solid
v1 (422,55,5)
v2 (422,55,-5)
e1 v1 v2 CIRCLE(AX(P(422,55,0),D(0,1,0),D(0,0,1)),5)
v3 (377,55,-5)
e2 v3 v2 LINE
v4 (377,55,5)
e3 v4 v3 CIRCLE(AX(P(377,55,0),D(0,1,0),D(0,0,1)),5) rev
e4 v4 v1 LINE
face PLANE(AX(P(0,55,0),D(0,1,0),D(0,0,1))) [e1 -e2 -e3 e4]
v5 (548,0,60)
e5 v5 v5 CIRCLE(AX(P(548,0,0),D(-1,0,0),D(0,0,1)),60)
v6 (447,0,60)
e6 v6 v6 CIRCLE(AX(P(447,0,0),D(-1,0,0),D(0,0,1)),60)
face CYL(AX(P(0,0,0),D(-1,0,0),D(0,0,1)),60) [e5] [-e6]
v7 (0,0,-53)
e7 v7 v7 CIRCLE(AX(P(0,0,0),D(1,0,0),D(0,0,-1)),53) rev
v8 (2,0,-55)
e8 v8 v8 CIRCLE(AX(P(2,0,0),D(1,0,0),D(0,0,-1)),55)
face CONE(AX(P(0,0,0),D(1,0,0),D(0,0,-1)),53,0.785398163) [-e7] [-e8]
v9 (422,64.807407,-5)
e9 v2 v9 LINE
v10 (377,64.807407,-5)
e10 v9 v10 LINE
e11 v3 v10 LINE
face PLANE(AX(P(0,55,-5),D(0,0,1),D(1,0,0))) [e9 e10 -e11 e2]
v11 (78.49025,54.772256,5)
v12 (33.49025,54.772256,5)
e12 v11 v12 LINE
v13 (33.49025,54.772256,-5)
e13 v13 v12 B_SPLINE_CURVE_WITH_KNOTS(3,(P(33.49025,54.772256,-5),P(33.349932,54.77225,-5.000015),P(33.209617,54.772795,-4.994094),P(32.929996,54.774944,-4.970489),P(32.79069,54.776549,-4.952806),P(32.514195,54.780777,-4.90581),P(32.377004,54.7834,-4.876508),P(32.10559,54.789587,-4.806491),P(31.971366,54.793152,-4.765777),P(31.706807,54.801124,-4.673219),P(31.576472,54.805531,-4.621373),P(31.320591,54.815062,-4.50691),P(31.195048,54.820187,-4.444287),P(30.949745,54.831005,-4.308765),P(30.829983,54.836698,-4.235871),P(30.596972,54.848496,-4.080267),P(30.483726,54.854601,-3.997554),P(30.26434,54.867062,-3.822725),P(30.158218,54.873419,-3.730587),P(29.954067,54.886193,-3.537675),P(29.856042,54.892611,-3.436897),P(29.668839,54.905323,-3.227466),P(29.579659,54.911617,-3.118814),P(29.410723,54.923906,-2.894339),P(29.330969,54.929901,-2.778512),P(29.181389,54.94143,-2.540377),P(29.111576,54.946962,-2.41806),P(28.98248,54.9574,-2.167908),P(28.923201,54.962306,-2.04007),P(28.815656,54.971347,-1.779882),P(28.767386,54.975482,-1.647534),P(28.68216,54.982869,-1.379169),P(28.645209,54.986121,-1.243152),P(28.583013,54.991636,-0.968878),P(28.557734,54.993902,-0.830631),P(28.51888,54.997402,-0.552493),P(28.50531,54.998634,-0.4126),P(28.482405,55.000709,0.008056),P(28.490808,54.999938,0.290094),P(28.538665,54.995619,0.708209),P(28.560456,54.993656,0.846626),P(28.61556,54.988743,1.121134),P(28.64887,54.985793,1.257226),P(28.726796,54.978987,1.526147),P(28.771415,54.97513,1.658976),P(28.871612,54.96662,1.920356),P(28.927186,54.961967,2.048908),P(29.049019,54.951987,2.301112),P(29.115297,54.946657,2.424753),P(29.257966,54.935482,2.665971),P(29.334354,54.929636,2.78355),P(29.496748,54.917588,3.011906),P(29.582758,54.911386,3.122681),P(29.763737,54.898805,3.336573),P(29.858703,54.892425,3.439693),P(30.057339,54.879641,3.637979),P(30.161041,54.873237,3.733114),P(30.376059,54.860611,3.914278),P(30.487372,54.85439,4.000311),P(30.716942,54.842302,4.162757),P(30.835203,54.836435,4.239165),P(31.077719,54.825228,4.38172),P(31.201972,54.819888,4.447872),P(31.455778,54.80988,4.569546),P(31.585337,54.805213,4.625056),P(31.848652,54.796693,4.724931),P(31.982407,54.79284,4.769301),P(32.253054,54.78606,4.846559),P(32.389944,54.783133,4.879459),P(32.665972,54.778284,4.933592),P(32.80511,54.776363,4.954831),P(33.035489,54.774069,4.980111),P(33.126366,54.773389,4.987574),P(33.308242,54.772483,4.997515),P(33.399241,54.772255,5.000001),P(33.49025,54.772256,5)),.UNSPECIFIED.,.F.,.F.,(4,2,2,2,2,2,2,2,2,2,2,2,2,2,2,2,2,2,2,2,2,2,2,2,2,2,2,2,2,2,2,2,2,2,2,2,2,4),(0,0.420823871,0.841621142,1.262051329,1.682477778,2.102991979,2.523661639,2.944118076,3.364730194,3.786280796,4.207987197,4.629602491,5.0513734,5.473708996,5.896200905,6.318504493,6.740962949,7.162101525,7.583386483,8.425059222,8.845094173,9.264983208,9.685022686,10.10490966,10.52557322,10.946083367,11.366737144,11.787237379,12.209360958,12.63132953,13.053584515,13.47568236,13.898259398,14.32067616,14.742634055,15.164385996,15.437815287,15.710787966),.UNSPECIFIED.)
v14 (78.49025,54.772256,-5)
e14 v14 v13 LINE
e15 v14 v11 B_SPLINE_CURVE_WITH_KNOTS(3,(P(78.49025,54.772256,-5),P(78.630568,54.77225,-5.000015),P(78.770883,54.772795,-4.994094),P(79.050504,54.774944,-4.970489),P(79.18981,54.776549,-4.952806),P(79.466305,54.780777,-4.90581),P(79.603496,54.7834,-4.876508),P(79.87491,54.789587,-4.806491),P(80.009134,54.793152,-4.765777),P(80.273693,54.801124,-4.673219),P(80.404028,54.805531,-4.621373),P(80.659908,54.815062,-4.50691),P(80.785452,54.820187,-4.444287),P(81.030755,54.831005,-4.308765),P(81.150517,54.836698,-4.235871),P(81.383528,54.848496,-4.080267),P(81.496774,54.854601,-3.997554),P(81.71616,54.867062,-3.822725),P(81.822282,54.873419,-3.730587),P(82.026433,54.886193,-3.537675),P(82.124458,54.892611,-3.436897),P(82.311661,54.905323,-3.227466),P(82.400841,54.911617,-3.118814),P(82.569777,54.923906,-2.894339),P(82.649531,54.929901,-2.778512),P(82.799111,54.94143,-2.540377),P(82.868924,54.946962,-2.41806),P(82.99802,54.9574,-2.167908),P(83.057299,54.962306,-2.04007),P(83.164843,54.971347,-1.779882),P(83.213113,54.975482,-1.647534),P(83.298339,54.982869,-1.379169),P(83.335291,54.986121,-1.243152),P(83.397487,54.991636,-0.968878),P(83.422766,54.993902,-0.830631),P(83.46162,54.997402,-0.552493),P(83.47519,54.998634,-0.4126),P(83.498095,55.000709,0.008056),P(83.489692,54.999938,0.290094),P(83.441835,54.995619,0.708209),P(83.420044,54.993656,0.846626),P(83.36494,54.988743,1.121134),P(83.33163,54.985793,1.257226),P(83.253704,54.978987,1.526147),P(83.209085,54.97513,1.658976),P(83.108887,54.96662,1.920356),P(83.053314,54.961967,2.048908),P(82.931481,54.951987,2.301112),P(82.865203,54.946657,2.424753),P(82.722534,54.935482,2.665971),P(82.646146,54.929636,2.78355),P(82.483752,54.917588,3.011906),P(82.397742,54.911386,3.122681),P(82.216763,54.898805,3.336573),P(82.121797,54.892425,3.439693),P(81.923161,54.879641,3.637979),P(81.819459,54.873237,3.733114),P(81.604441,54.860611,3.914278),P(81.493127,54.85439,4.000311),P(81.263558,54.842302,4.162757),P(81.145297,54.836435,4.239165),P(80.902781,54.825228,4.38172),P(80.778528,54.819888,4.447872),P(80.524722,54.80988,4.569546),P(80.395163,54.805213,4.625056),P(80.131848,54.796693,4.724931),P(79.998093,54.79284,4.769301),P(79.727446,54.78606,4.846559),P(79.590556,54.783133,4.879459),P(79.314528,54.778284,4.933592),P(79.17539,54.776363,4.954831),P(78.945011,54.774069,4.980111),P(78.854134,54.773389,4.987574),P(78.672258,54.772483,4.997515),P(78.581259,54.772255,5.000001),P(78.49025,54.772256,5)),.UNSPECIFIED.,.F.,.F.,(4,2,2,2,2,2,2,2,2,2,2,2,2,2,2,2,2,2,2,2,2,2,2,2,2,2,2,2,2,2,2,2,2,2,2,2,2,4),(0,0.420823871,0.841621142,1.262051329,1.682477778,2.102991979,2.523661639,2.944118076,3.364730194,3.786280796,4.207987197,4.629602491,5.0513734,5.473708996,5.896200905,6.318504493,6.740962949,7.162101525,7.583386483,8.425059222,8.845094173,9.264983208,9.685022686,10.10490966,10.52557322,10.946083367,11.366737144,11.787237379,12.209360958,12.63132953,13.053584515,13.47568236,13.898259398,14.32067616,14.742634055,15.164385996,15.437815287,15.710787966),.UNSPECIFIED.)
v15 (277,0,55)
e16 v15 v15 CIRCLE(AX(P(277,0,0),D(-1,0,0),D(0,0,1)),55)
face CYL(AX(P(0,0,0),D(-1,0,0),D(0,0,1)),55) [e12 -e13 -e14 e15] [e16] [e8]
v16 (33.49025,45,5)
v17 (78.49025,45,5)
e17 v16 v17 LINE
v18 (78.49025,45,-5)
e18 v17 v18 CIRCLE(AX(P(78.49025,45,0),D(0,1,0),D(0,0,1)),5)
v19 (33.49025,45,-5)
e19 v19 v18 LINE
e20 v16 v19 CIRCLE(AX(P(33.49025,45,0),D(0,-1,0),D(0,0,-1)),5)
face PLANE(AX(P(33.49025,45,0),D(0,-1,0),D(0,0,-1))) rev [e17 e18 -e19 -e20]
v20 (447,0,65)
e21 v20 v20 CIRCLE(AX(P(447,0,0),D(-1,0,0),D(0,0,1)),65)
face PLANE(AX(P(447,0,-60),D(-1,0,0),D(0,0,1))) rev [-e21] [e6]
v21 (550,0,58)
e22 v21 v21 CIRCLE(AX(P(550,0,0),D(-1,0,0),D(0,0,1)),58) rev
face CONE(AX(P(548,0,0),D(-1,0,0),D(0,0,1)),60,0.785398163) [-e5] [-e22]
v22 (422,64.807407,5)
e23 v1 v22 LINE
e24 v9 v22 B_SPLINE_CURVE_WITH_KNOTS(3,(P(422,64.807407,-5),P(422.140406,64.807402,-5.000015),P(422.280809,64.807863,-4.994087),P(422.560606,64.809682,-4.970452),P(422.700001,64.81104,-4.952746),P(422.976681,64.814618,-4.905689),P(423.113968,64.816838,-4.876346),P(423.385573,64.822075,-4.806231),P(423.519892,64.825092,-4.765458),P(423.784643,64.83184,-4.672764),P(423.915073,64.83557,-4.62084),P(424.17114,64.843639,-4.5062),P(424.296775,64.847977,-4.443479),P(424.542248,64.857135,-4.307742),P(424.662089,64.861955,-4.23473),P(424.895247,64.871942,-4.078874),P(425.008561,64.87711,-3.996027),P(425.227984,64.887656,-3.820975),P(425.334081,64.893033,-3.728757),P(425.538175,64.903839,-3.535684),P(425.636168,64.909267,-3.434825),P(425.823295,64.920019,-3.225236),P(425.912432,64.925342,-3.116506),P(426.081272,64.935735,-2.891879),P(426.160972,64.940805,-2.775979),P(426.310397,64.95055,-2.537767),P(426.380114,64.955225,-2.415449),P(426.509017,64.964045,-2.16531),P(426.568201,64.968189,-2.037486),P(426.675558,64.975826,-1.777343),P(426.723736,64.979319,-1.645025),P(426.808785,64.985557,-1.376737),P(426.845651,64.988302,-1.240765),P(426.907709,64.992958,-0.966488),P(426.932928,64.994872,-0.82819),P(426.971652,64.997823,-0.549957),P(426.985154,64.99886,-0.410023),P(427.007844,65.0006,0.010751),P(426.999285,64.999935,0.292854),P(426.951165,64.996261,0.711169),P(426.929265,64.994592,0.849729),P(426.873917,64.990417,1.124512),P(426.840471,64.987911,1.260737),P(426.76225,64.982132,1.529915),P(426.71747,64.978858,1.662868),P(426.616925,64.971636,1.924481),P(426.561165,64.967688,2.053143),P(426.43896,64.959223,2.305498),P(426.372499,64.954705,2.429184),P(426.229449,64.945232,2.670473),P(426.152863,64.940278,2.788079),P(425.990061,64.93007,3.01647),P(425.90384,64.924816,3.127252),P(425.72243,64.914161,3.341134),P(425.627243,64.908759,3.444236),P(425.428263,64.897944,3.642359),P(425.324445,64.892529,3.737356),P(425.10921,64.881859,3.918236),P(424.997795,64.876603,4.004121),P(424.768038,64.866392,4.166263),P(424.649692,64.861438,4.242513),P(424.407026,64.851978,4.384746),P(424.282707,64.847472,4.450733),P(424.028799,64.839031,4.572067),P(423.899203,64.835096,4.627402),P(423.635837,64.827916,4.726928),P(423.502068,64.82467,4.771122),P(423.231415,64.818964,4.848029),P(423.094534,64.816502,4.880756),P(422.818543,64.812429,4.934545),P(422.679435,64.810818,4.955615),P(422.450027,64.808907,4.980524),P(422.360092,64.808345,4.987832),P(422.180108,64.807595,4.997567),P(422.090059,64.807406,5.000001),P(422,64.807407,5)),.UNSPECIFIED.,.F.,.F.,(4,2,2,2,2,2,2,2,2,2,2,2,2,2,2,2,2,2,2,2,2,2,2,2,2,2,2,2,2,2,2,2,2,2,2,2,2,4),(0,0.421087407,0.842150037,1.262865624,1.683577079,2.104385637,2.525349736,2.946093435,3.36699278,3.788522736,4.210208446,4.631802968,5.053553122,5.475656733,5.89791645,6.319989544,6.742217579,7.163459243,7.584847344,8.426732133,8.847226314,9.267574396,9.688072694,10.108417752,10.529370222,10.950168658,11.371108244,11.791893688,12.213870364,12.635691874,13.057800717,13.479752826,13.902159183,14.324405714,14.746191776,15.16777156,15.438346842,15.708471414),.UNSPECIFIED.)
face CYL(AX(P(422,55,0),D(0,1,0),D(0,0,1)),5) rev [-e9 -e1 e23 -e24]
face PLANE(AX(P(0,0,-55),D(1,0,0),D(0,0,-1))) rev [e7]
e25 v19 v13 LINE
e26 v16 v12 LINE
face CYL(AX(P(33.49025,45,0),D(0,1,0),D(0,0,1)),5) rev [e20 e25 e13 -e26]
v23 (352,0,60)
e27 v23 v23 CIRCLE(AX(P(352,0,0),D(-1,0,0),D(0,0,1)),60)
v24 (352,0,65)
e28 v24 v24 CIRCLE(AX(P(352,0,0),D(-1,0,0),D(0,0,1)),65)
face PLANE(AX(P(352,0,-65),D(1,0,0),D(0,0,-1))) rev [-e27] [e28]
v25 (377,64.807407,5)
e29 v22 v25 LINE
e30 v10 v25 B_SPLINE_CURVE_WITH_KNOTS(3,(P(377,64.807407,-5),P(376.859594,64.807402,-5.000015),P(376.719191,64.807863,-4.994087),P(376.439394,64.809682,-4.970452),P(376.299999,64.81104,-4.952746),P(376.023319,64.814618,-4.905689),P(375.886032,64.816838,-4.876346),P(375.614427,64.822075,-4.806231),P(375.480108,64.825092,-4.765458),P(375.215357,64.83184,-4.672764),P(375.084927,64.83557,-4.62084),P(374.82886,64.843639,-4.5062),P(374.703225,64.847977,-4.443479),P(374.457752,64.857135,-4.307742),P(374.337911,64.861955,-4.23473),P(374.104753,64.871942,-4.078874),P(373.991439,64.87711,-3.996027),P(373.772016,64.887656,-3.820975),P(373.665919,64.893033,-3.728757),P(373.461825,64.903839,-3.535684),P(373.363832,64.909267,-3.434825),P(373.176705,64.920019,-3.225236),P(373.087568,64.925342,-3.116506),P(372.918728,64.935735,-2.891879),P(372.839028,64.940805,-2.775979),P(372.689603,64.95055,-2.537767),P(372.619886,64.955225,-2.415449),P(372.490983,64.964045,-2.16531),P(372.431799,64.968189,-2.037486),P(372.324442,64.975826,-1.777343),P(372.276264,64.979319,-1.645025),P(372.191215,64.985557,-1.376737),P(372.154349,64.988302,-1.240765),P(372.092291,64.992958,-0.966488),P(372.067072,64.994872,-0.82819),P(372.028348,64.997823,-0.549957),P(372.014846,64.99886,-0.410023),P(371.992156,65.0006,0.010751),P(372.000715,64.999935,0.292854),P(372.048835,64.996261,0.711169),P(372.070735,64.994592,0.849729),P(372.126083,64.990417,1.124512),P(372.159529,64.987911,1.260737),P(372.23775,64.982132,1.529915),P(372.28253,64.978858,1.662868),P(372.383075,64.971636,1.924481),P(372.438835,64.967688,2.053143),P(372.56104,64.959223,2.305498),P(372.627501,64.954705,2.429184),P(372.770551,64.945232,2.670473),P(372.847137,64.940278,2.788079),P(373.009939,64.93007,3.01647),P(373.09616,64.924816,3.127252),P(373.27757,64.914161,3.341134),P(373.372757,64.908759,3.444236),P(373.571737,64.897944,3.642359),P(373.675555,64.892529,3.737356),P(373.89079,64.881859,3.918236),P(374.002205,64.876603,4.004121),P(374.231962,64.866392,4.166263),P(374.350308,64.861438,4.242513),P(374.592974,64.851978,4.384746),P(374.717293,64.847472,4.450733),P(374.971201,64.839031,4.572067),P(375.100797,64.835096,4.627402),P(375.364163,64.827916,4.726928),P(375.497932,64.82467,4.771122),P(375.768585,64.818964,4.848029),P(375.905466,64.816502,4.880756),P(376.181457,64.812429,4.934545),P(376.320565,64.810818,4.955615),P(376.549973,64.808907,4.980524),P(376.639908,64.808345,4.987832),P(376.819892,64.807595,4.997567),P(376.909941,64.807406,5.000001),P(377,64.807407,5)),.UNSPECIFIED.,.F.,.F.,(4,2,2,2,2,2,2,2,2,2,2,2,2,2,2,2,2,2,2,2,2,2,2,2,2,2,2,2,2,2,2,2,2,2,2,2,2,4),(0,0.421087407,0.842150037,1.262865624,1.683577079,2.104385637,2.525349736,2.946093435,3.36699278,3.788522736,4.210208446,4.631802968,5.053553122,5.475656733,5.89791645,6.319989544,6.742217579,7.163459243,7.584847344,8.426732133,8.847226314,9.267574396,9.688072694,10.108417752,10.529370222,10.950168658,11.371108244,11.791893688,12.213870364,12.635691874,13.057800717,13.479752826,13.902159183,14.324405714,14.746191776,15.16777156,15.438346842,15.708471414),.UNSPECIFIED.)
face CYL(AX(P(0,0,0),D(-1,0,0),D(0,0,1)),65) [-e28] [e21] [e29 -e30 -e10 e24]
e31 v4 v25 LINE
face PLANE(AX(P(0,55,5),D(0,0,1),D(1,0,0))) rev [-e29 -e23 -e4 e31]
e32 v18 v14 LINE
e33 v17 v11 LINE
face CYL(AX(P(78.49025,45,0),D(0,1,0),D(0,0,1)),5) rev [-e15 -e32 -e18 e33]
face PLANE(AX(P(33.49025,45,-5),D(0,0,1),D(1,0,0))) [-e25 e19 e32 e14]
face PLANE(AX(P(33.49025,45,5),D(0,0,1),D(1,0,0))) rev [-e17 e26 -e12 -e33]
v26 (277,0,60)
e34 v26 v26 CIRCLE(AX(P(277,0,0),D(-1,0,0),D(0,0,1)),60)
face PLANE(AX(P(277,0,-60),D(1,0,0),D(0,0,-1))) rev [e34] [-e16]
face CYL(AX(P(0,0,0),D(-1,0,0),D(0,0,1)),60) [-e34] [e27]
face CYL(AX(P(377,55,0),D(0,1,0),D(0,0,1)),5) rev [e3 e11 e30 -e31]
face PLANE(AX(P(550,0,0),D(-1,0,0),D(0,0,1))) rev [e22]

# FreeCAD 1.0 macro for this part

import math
import FreeCAD as App
import Part
import Sketcher
Q = App.Units.Quantity


def edges_at(feature, points):
    """Names of the edges that pass closest to the given points."""
    edges = feature.Shape.Edges
    near = lambda p: min(range(len(edges)), key=lambda i: edges[i].distToShape(Part.Vertex(*p))[0])
    return sorted({f"Edge{near(p) + 1}" for p in points})

doc = App.newDocument("Part")
body = doc.addObject("PartDesign::Body", "Body")

# Sketch on XZ plane
sketch1 = body.newObject("Sketcher::SketchObject", "Sketch")
sketch1.AttachmentSupport = (doc.getObject("XZ_Plane"), [""])
sketch1.MapMode = "FlatFace"
sketch1.addGeometry([
    Part.LineSegment(App.Vector(0, 0, 0), App.Vector(550, 0, 0)),  # 0
    Part.LineSegment(App.Vector(550, 0, 0), App.Vector(550, -60, 0)),  # 1
    Part.LineSegment(App.Vector(550, -60, 0), App.Vector(447, -60, 0)),  # 2
    Part.LineSegment(App.Vector(447, -60, 0), App.Vector(447, -65, 0)),  # 3
    Part.LineSegment(App.Vector(447, -65, 0), App.Vector(352, -65, 0)),  # 4
    Part.LineSegment(App.Vector(352, -65, 0), App.Vector(352, -60, 0)),  # 5
    Part.LineSegment(App.Vector(352, -60, 0), App.Vector(277, -60, 0)),  # 6
    Part.LineSegment(App.Vector(277, -60, 0), App.Vector(277, -55, 0)),  # 7
    Part.LineSegment(App.Vector(277, -55, 0), App.Vector(0, -55, 0)),  # 8
    Part.LineSegment(App.Vector(0, -55, 0), App.Vector(0, 0, 0)),  # 9
], False)
sketch1.addConstraint([
    Sketcher.Constraint("Coincident", 0, 2, 1, 1),
    Sketcher.Constraint("Coincident", 1, 2, 2, 1),
    Sketcher.Constraint("Coincident", 2, 2, 3, 1),
    Sketcher.Constraint("Coincident", 3, 2, 4, 1),
    Sketcher.Constraint("Coincident", 4, 2, 5, 1),
    Sketcher.Constraint("Coincident", 5, 2, 6, 1),
    Sketcher.Constraint("Coincident", 6, 2, 7, 1),
    Sketcher.Constraint("Coincident", 7, 2, 8, 1),
    Sketcher.Constraint("Coincident", 8, 2, 9, 1),
    Sketcher.Constraint("Coincident", 9, 2, 0, 1),
    Sketcher.Constraint("Horizontal", 0),
    Sketcher.Constraint("Vertical", 1),
    Sketcher.Constraint("Horizontal", 2),
    Sketcher.Constraint("Vertical", 3),
    Sketcher.Constraint("Horizontal", 4),
    Sketcher.Constraint("Vertical", 5),
    Sketcher.Constraint("Horizontal", 6),
    Sketcher.Constraint("Vertical", 7),
    Sketcher.Constraint("Horizontal", 8),
    Sketcher.Constraint("Vertical", 9),
    Sketcher.Constraint("Coincident", 9, 2, -1, 1),
    Sketcher.Constraint("Horizontal", 2, 2, 5, 2),
    Sketcher.Constraint("Equal", 5, 7),
    Sketcher.Constraint("DistanceX", 0, 1, 0, 2, Q("550 mm")),
    Sketcher.Constraint("DistanceX", 2, 2, 2, 1, Q("103 mm")),
    Sketcher.Constraint("DistanceX", 4, 2, 4, 1, Q("95 mm")),
    Sketcher.Constraint("DistanceX", 6, 2, 6, 1, Q("75 mm")),
    Sketcher.Constraint("DistanceY", 1, 2, 1, 1, Q("60 mm")),
    Sketcher.Constraint("DistanceY", 3, 2, 3, 1, Q("5 mm")),
])
revolution = body.newObject("PartDesign::Revolution", "Revolution")
revolution.Profile = sketch1
revolution.ReferenceAxis = (sketch1, ["H_Axis"])
revolution.Angle = 360
doc.recompute()

chamfer = body.newObject("PartDesign::Chamfer", "Chamfer")
chamfer.Base = (revolution, edges_at(revolution, [(0, 0, -55)]))
chamfer.Size = 2
doc.recompute()

chamfer2 = body.newObject("PartDesign::Chamfer", "Chamfer001")
chamfer2.Base = (chamfer, edges_at(chamfer, [(550, 0, -60)]))
chamfer2.Size = 2

# Sketch on XZ plane
sketch2 = body.newObject("Sketcher::SketchObject", "Sketch001")
sketch2.AttachmentSupport = (doc.getObject("XZ_Plane"), [""])
sketch2.MapMode = "FlatFace"
sketch2.AttachmentOffset = App.Placement(App.Vector(0, 0, -65), App.Rotation())
sketch2.addGeometry([
    Part.LineSegment(App.Vector(377, 5, 0), App.Vector(422, 5, 0)),
    Part.ArcOfCircle(Part.Circle(App.Vector(422, 0, 0), App.Vector(0, 0, 1), 5), math.radians(-90), math.radians(90)),
    Part.LineSegment(App.Vector(422, -5, 0), App.Vector(377, -5, 0)),
    Part.ArcOfCircle(Part.Circle(App.Vector(377, 0, 0), App.Vector(0, 0, 1), 5), math.radians(90), math.radians(270)),
], False)
sketch2.addConstraint([
    Sketcher.Constraint("Tangent", 0, 2, 1, 2),
    Sketcher.Constraint("Tangent", 1, 1, 2, 1),
    Sketcher.Constraint("Tangent", 2, 2, 3, 2),
    Sketcher.Constraint("Tangent", 3, 1, 0, 1),
    Sketcher.Constraint("Horizontal", 0),
    Sketcher.Constraint("Horizontal", 2),
    Sketcher.Constraint("PointOnObject", 1, 3, -1),
    Sketcher.Constraint("Radius", 1, Q("5 mm")),
    Sketcher.Constraint("DistanceX", 0, 1, 0, 2, Q("45 mm")),
    Sketcher.Constraint("DistanceX", -1, 1, 1, 3, Q("422 mm")),
])
pocket1 = body.newObject("PartDesign::Pocket", "Pocket")
pocket1.Profile = sketch2
pocket1.Length = 10
pocket1.Reversed = True

# Sketch on XZ plane
sketch3 = body.newObject("Sketcher::SketchObject", "Sketch002")
sketch3.AttachmentSupport = (doc.getObject("XZ_Plane"), [""])
sketch3.MapMode = "FlatFace"
sketch3.AttachmentOffset = App.Placement(App.Vector(0, 0, -55), App.Rotation())
sketch3.addGeometry([
    Part.LineSegment(App.Vector(33, 5, 0), App.Vector(78, 5, 0)),
    Part.ArcOfCircle(Part.Circle(App.Vector(78, 0, 0), App.Vector(0, 0, 1), 5), math.radians(-90), math.radians(90)),
    Part.LineSegment(App.Vector(78, -5, 0), App.Vector(33, -5, 0)),
    Part.ArcOfCircle(Part.Circle(App.Vector(33, 0, 0), App.Vector(0, 0, 1), 5), math.radians(90), math.radians(270)),
], False)
sketch3.addConstraint([
    Sketcher.Constraint("Tangent", 0, 2, 1, 2),
    Sketcher.Constraint("Tangent", 1, 1, 2, 1),
    Sketcher.Constraint("Tangent", 2, 2, 3, 2),
    Sketcher.Constraint("Tangent", 3, 1, 0, 1),
    Sketcher.Constraint("Horizontal", 0),
    Sketcher.Constraint("Horizontal", 2),
    Sketcher.Constraint("PointOnObject", 1, 3, -1),
    Sketcher.Constraint("Radius", 1, Q("5 mm")),
    Sketcher.Constraint("DistanceX", 0, 1, 0, 2, Q("45 mm")),
    Sketcher.Constraint("DistanceX", -1, 1, 1, 3, Q("78.49025 mm")),
])
pocket2 = body.newObject("PartDesign::Pocket", "Pocket001")
pocket2.Profile = sketch3
pocket2.Length = 10
pocket2.Reversed = True

doc.recompute()
